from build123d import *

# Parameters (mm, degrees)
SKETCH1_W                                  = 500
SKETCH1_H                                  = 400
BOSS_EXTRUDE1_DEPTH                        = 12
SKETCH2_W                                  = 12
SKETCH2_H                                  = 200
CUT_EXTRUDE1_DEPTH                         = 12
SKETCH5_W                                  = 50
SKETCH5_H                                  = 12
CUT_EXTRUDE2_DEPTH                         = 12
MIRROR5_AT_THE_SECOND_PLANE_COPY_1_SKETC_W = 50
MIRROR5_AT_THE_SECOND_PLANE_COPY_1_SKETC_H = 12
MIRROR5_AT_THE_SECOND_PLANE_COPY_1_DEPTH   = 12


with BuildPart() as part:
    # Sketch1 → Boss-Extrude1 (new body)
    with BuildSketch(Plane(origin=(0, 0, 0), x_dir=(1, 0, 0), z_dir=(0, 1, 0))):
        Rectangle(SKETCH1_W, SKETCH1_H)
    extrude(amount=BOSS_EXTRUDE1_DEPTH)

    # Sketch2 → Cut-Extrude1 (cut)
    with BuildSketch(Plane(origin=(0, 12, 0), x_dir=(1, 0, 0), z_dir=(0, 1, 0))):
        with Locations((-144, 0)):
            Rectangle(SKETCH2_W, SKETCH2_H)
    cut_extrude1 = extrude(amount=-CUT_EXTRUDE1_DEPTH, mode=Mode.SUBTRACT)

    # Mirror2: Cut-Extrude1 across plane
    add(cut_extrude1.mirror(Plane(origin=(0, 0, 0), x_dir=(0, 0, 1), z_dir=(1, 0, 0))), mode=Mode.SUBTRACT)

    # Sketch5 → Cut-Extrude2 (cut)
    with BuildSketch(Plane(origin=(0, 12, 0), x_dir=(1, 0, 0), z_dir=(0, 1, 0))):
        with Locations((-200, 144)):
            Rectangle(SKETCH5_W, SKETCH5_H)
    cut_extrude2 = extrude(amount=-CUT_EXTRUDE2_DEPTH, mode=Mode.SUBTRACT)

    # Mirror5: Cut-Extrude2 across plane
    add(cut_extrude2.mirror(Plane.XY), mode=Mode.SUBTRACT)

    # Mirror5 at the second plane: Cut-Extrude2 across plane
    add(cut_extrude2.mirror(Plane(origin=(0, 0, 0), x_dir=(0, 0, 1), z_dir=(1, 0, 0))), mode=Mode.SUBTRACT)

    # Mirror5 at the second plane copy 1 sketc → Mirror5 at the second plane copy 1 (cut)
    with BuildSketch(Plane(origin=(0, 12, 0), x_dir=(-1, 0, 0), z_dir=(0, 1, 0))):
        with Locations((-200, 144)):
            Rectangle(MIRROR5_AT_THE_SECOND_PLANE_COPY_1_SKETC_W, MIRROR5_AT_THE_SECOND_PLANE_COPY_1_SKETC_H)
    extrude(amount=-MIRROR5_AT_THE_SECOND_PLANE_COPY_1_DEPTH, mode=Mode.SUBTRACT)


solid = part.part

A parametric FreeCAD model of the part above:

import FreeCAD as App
import Part
import Sketcher

doc = App.newDocument("Part")
body = doc.addObject("PartDesign::Body", "Body")

# Sketch on XZ plane
sketch1 = body.newObject("Sketcher::SketchObject", "Sketch")
sketch1.AttachmentSupport = (doc.getObject("XZ_Plane"), [""])
sketch1.MapMode = "FlatFace"
sketch1.addGeometry([
    Part.LineSegment(App.Vector(-250, -200, 0), App.Vector(-250, 200, 0)),
    Part.LineSegment(App.Vector(-250, 200, 0), App.Vector(250, 200, 0)),
    Part.LineSegment(App.Vector(250, 200, 0), App.Vector(250, -200, 0)),
    Part.LineSegment(App.Vector(250, -200, 0), App.Vector(-250, -200, 0)),
], False)
sketch1.addConstraint([
    Sketcher.Constraint("Coincident", 0, 2, 1, 1),
    Sketcher.Constraint("Coincident", 1, 2, 2, 1),
    Sketcher.Constraint("Coincident", 2, 2, 3, 1),
    Sketcher.Constraint("Coincident", 3, 2, 0, 1),
    Sketcher.Constraint("Vertical", 0),
    Sketcher.Constraint("Horizontal", 1),
    Sketcher.Constraint("Vertical", 2),
    Sketcher.Constraint("Horizontal", 3),
    Sketcher.Constraint("Symmetric", 0, 2, 2, 2, -1, 1),
    Sketcher.Constraint("DistanceX", 1, 1, 1, 2, 500.0),
    Sketcher.Constraint("DistanceY", 0, 1, 0, 2, 400.0),
])
pad1 = body.newObject("PartDesign::Pad", "Pad")
pad1.Profile = sketch1
pad1.Length = 12
pad1.Reversed = True

# Sketch on XZ plane
sketch2 = body.newObject("Sketcher::SketchObject", "Sketch001")
sketch2.AttachmentSupport = (doc.getObject("XZ_Plane"), [""])
sketch2.MapMode = "FlatFace"
sketch2.AttachmentOffset = App.Placement(App.Vector(0, 0, -12), App.Rotation())
sketch2.addGeometry([
    Part.LineSegment(App.Vector(-150, -100, 0), App.Vector(-150, 100, 0)),
    Part.LineSegment(App.Vector(-150, 100, 0), App.Vector(-138, 100, 0)),
    Part.LineSegment(App.Vector(-138, 100, 0), App.Vector(-138, -100, 0)),
    Part.LineSegment(App.Vector(-138, -100, 0), App.Vector(-150, -100, 0)),
], False)
sketch2.addConstraint([
    Sketcher.Constraint("Coincident", 0, 2, 1, 1),
    Sketcher.Constraint("Coincident", 1, 2, 2, 1),
    Sketcher.Constraint("Coincident", 2, 2, 3, 1),
    Sketcher.Constraint("Coincident", 3, 2, 0, 1),
    Sketcher.Constraint("Vertical", 0),
    Sketcher.Constraint("Horizontal", 1),
    Sketcher.Constraint("Vertical", 2),
    Sketcher.Constraint("Horizontal", 3),
    Sketcher.Constraint("DistanceX", 1, 1, 1, 2, 12.0),
    Sketcher.Constraint("DistanceY", 0, 1, 0, 2, 200.0),
    Sketcher.Constraint("DistanceX", 0, 2, -1, 1, 150.0),
    Sketcher.Constraint("DistanceY", -1, 1, 0, 2, 100.0),
])
pocket1 = body.newObject("PartDesign::Pocket", "Pocket")
pocket1.Profile = sketch2
pocket1.Length = 12
pocket1.Reversed = True
doc.recompute()

mirrored = body.newObject("PartDesign::Mirrored", "Mirrored")
mirrored.Originals = [pocket1]
mirrored.MirrorPlane = (doc.getObject("YZ_Plane"), [""])
body.Tip = mirrored

# Sketch on XZ plane
sketch3 = body.newObject("Sketcher::SketchObject", "Sketch002")
sketch3.AttachmentSupport = (doc.getObject("XZ_Plane"), [""])
sketch3.MapMode = "FlatFace"
sketch3.AttachmentOffset = App.Placement(App.Vector(0, 0, -12), App.Rotation())
sketch3.addGeometry([
    Part.LineSegment(App.Vector(-225, -150, 0), App.Vector(-225, -138, 0)),
    Part.LineSegment(App.Vector(-225, -138, 0), App.Vector(-175, -138, 0)),
    Part.LineSegment(App.Vector(-175, -138, 0), App.Vector(-175, -150, 0)),
    Part.LineSegment(App.Vector(-175, -150, 0), App.Vector(-225, -150, 0)),
], False)
sketch3.addConstraint([
    Sketcher.Constraint("Coincident", 0, 2, 1, 1),
    Sketcher.Constraint("Coincident", 1, 2, 2, 1),
    Sketcher.Constraint("Coincident", 2, 2, 3, 1),
    Sketcher.Constraint("Coincident", 3, 2, 0, 1),
    Sketcher.Constraint("Vertical", 0),
    Sketcher.Constraint("Horizontal", 1),
    Sketcher.Constraint("Vertical", 2),
    Sketcher.Constraint("Horizontal", 3),
    Sketcher.Constraint("DistanceX", 1, 1, 1, 2, 50.0),
    Sketcher.Constraint("DistanceY", 0, 1, 0, 2, 12.0),
    Sketcher.Constraint("DistanceX", 0, 2, -1, 1, 225.0),
    Sketcher.Constraint("DistanceY", 0, 2, -1, 1, 138.0),
])
pocket2 = body.newObject("PartDesign::Pocket", "Pocket001")
pocket2.Profile = sketch3
pocket2.Length = 12
pocket2.Reversed = True
doc.recompute()

mirrored2 = body.newObject("PartDesign::Mirrored", "Mirrored001")
mirrored2.Originals = [pocket2]
mirrored2.MirrorPlane = (doc.getObject("XY_Plane"), [""])
body.Tip = mirrored2
doc.recompute()

mirrored3 = body.newObject("PartDesign::Mirrored", "Mirrored002")
mirrored3.Originals = [pocket2]
mirrored3.MirrorPlane = (doc.getObject("YZ_Plane"), [""])
body.Tip = mirrored3

# Sketch on XZ plane
sketch4 = body.newObject("Sketcher::SketchObject", "Sketch003")
sketch4.AttachmentSupport = (doc.getObject("XZ_Plane"), [""])
sketch4.MapMode = "FlatFace"
sketch4.AttachmentOffset = App.Placement(App.Vector(0, 0, -12), App.Rotation())
sketch4.addGeometry([
    Part.LineSegment(App.Vector(225, 150, 0), App.Vector(225, 138, 0)),
    Part.LineSegment(App.Vector(225, 138, 0), App.Vector(175, 138, 0)),
    Part.LineSegment(App.Vector(175, 138, 0), App.Vector(175, 150, 0)),
    Part.LineSegment(App.Vector(175, 150, 0), App.Vector(225, 150, 0)),
], False)
sketch4.addConstraint([
    Sketcher.Constraint("Coincident", 0, 2, 1, 1),
    Sketcher.Constraint("Coincident", 1, 2, 2, 1),
    Sketcher.Constraint("Coincident", 2, 2, 3, 1),
    Sketcher.Constraint("Coincident", 3, 2, 0, 1),
    Sketcher.Constraint("Vertical", 0),
    Sketcher.Constraint("Horizontal", 1),
    Sketcher.Constraint("Vertical", 2),
    Sketcher.Constraint("Horizontal", 3),
    Sketcher.Constraint("DistanceX", 1, 2, 1, 1, 50.0),
    Sketcher.Constraint("DistanceY", 0, 2, 0, 1, 12.0),
    Sketcher.Constraint("DistanceX", -1, 1, 0, 2, 225.0),
    Sketcher.Constraint("DistanceY", -1, 1, 0, 2, 138.0),
])
pocket3 = body.newObject("PartDesign::Pocket", "Pocket002")
pocket3.Profile = sketch4
pocket3.Length = 12
pocket3.Reversed = True

doc.recompute()
